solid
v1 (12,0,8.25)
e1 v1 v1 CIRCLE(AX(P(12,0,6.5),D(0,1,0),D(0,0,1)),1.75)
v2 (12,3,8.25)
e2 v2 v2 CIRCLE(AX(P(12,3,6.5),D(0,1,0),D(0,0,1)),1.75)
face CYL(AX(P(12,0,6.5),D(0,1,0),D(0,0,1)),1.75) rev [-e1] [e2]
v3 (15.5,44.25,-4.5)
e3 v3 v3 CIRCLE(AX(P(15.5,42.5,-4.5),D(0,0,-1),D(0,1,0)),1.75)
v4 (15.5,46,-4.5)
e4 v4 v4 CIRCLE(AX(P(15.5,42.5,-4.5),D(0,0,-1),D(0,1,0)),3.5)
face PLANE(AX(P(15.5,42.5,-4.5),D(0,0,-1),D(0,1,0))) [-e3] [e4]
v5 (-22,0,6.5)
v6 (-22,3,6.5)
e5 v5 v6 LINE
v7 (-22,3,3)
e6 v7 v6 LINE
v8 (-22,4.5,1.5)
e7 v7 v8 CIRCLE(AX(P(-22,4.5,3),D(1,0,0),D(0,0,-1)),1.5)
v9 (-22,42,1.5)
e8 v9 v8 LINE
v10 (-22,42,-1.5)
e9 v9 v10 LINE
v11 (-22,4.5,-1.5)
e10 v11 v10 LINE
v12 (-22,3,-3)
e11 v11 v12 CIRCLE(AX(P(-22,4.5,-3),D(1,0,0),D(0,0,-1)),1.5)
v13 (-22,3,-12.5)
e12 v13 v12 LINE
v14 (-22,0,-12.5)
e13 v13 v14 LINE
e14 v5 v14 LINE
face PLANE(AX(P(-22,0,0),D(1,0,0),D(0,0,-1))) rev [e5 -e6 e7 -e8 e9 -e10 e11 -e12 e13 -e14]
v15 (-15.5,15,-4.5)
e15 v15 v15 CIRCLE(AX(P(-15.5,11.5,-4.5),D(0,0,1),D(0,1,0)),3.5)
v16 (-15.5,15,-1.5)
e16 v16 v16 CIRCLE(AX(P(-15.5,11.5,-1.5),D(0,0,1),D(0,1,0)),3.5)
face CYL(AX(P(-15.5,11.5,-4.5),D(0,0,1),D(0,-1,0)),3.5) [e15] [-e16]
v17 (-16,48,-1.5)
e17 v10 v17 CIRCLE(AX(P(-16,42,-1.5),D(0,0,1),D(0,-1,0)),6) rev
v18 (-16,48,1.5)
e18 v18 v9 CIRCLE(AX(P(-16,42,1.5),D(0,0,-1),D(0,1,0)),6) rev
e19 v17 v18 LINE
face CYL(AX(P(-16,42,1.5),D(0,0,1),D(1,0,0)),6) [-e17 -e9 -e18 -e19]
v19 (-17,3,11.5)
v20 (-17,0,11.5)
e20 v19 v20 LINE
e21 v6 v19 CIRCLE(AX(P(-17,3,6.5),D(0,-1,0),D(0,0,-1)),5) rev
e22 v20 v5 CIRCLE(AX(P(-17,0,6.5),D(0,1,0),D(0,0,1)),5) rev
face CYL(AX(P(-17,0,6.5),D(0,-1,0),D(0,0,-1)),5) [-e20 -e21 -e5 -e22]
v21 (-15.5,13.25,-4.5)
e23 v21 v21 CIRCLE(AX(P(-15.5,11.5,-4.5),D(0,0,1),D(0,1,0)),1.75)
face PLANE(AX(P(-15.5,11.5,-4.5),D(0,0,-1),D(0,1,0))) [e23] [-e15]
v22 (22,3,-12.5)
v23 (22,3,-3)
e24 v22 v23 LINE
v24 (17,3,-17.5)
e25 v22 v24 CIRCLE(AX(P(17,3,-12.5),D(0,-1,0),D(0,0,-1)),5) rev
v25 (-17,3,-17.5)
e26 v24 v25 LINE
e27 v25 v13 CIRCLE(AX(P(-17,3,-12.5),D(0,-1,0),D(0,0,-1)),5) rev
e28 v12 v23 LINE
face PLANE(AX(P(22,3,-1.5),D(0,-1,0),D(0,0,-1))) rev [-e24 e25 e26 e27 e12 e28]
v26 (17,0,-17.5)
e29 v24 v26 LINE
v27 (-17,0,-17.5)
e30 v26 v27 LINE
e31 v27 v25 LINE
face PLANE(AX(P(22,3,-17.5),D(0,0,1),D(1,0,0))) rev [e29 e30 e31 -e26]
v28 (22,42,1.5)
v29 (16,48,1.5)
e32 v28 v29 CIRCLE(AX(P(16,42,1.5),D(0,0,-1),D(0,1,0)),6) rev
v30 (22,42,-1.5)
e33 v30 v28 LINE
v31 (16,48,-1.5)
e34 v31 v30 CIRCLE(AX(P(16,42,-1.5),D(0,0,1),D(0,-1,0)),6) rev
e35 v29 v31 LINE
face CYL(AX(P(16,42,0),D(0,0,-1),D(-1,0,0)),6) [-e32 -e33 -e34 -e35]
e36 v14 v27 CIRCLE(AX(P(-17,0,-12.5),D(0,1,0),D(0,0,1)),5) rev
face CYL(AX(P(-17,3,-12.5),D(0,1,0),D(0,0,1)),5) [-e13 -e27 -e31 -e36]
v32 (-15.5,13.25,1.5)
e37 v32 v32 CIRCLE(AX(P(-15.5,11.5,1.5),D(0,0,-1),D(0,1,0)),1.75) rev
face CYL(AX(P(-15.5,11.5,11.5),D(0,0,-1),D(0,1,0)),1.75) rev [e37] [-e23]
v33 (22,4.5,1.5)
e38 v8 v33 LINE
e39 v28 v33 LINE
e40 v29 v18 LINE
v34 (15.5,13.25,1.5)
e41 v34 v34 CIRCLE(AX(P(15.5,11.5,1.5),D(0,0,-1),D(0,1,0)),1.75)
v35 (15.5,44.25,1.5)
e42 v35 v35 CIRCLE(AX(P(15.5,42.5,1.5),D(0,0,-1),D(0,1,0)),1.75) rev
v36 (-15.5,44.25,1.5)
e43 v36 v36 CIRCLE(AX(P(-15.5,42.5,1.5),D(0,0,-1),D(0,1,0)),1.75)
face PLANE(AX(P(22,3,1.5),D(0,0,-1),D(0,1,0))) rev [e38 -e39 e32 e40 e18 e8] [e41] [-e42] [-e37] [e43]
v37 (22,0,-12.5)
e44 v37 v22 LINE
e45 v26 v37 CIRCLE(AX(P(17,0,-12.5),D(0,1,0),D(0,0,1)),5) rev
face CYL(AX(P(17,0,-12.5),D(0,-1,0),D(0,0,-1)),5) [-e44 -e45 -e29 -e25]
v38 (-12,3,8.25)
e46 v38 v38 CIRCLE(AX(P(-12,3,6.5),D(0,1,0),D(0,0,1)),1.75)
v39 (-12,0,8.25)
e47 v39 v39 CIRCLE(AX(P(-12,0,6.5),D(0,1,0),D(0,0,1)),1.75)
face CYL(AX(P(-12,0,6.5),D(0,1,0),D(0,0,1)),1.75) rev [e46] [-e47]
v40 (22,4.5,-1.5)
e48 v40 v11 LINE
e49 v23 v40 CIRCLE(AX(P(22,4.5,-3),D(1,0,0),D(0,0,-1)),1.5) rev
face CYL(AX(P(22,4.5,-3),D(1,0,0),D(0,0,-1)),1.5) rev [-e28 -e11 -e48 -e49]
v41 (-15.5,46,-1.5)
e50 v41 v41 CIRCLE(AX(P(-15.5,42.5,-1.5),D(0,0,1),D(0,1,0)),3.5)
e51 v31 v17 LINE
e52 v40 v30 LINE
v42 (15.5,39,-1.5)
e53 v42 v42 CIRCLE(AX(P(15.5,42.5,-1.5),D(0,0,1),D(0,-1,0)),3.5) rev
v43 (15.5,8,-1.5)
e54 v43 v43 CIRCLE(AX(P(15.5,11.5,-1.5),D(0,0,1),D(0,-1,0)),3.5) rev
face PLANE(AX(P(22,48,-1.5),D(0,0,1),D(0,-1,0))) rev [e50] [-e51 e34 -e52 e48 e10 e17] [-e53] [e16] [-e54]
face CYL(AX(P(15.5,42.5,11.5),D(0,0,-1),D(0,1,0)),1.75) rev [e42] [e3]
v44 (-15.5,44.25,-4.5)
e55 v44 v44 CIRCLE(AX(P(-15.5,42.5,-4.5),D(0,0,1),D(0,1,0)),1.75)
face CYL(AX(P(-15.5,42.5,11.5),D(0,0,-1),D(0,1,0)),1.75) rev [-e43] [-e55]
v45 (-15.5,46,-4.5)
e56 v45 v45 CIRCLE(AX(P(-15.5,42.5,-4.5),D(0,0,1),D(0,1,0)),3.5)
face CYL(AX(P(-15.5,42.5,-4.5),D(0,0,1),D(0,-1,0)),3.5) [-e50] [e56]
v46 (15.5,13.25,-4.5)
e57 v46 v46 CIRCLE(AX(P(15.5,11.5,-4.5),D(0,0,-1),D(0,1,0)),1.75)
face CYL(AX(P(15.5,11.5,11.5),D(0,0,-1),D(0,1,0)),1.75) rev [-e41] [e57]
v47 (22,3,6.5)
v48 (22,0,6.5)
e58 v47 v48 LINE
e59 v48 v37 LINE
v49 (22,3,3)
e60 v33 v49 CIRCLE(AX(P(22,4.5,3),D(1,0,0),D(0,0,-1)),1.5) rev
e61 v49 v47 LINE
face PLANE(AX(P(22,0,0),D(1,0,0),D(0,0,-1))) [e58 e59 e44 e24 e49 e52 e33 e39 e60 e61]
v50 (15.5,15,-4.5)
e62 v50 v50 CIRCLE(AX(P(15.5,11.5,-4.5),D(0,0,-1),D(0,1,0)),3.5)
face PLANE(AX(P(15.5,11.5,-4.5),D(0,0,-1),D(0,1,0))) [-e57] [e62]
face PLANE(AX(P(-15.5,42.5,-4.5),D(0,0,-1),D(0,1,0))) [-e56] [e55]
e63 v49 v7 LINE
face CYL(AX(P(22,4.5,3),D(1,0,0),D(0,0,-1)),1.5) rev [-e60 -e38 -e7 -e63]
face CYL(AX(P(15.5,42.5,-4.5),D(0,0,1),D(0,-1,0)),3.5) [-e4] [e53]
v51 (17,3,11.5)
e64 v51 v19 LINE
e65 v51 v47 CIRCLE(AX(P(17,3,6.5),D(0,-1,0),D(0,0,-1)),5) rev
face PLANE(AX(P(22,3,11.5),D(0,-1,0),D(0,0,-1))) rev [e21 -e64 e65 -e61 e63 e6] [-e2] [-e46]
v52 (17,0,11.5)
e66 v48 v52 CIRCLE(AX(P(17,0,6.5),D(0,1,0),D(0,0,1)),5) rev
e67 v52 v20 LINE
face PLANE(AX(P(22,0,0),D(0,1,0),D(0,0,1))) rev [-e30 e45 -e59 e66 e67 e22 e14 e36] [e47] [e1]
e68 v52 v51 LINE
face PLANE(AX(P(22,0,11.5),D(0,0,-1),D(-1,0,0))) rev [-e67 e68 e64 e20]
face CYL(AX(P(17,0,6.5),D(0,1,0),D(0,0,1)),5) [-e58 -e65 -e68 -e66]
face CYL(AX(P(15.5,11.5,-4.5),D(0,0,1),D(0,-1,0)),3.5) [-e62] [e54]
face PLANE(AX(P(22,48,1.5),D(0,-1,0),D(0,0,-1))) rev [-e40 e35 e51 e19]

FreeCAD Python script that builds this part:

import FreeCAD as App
import Part
import Sketcher


def edges_at(feature, points):
    """Names of the edges that pass closest to the given points."""
    edges = feature.Shape.Edges
    near = lambda p: min(range(len(edges)), key=lambda i: edges[i].distToShape(Part.Vertex(*p))[0])
    return sorted({f"Edge{near(p) + 1}" for p in points})


def add_polygon(sketch, points):
    """Adds a closed chain of lines whose ends are joined by coincident constraints."""
    first, n = sketch.GeometryCount, len(points)
    for a, b in zip(points, points[1:] + points[:1]):
        sketch.addGeometry(Part.LineSegment(App.Vector(*a, 0), App.Vector(*b, 0)), False)
    for i in range(n):
        sketch.addConstraint(Sketcher.Constraint("Coincident", first + i, 2, first + (i + 1) % n, 1))

doc = App.newDocument("Part")
body = doc.addObject("PartDesign::Body", "Body")

sketch1 = doc.addObject("Sketcher::SketchObject", "Sketch")
body.addObject(sketch1)
sketch1.AttachmentSupport = (doc.YZ_Plane, [""])
sketch1.MapMode = "FlatFace"
add_polygon(sketch1, [(3, 11.5), (0, 11.5), (0, -17.5), (3, -17.5), (3, -1.5), (48, -1.5), (48, 1.5), (3, 1.5)])
sketch1.addConstraint([
    Sketcher.Constraint("Horizontal", 0),
    Sketcher.Constraint("Vertical", 1),
    Sketcher.Constraint("Horizontal", 2),
    Sketcher.Constraint("Vertical", 3),
    Sketcher.Constraint("Horizontal", 4),
    Sketcher.Constraint("Vertical", 5),
    Sketcher.Constraint("Horizontal", 6),
    Sketcher.Constraint("Vertical", 7),
    Sketcher.Constraint("Symmetric", 3, 2, 6, 2, -1),
    Sketcher.Constraint("PointOnObject", 0, 2, -2),
    Sketcher.Constraint("Equal", 2, 5),
    Sketcher.Constraint("DistanceX", 0, 2, 0, 1, 3.0),
    Sketcher.Constraint("DistanceX", 4, 1, 4, 2, 45.0),
    Sketcher.Constraint("DistanceY", 1, 2, 1, 1, 29.0),
    Sketcher.Constraint("DistanceY", 3, 1, 3, 2, 16.0),
])
pad1 = doc.addObject("PartDesign::Pad", "Pad")
body.addObject(pad1)
pad1.Profile = sketch1
pad1.Length = 44
pad1.Midplane = True

sketch2 = doc.addObject("Sketcher::SketchObject", "Sketch001")
body.addObject(sketch2)
sketch2.AttachmentSupport = (doc.XY_Plane, [""])
sketch2.MapMode = "FlatFace"
sketch2.AttachmentOffset = App.Placement(App.Vector(0, 0, -1.5), App.Rotation())
sketch2.addGeometry([
    Part.Circle(App.Vector(-15.5, 42.5, 0), App.Vector(0, 0, 1), 1.8),
    Part.Circle(App.Vector(15.5, 11.5, 0), App.Vector(0, 0, 1), 1.8),
], False)
sketch2.addConstraint([
    Sketcher.Constraint("Equal", 0, 1),
    Sketcher.Constraint("Diameter", 0, 3.5),
    Sketcher.Constraint("DistanceX", 0, 3, 1, 3, 31.0),
    Sketcher.Constraint("DistanceY", 1, 3, 0, 3, 31.0),
    Sketcher.Constraint("DistanceX", 0, 3, -1, 1, 15.5),
    Sketcher.Constraint("DistanceY", -1, 1, 0, 3, 42.5),
])
pocket1 = doc.addObject("PartDesign::Pocket", "Pocket")
body.addObject(pocket1)
pocket1.Profile = sketch2
pocket1.Type = "ThroughAll"
pocket1.Reversed = True
doc.recompute()

mirrored = doc.addObject("PartDesign::Mirrored", "Mirrored")
body.addObject(mirrored)
mirrored.Originals = [pocket1]
mirrored.MirrorPlane = (doc.YZ_Plane, [""])
body.Tip = mirrored

sketch3 = doc.addObject("Sketcher::SketchObject", "Sketch002")
body.addObject(sketch3)
sketch3.AttachmentSupport = (doc.XZ_Plane, [""])
sketch3.MapMode = "FlatFace"
sketch3.AttachmentOffset = App.Placement(App.Vector(0, 0, -3), App.Rotation())
sketch3.addGeometry([
    Part.Circle(App.Vector(-12, 6.5, 0), App.Vector(0, 0, 1), 1.8),
    Part.Circle(App.Vector(12, 6.5, 0), App.Vector(0, 0, 1), 1.8),
], False)
sketch3.addConstraint([
    Sketcher.Constraint("Equal", 0, 1),
    Sketcher.Constraint("Symmetric", 0, 3, 1, 3, -2),
    Sketcher.Constraint("Diameter", 0, 3.5),
    Sketcher.Constraint("DistanceX", 0, 3, -1, 1, 12.0),
    Sketcher.Constraint("DistanceY", -1, 1, 0, 3, 6.5),
])
pocket2 = doc.addObject("PartDesign::Pocket", "Pocket001")
body.addObject(pocket2)
pocket2.Profile = sketch3
pocket2.Type = "ThroughAll"
pocket2.Reversed = True
doc.recompute()

fillet = doc.addObject("PartDesign::Fillet", "Fillet")
body.addObject(fillet)
fillet.Base = (pocket2, edges_at(pocket2, [(-22, 48, 0), (22, 48, 0)]))
fillet.Radius = 6
doc.recompute()

fillet2 = doc.addObject("PartDesign::Fillet", "Fillet001")
body.addObject(fillet2)
fillet2.Base = (fillet, edges_at(fillet, [
    (-22, 1.5, 11.5),
    (-22, 1.5, -17.5),
    (22, 1.5, 11.5),
    (22, 1.5, -17.5),
]))
fillet2.Radius = 5
doc.recompute()

fillet3 = doc.addObject("PartDesign::Fillet", "Fillet002")
body.addObject(fillet3)
fillet3.Base = (fillet2, edges_at(fillet2, [(0, 3, 1.5), (0, 3, -1.5)]))
fillet3.Radius = 1.5

sketch4 = doc.addObject("Sketcher::SketchObject", "Sketch003")
body.addObject(sketch4)
sketch4.AttachmentSupport = (doc.XY_Plane, [""])
sketch4.MapMode = "FlatFace"
sketch4.AttachmentOffset = App.Placement(App.Vector(0, 0, -4.5), App.Rotation())
sketch4.addGeometry([
    Part.Circle(App.Vector(15.5, 42.5, 0), App.Vector(0, 0, 1), 3.5),
    Part.Circle(App.Vector(15.5, 42.5, 0), App.Vector(0, 0, 1), 1.8),
    Part.Circle(App.Vector(15.5, 11.5, 0), App.Vector(0, 0, 1), 3.5),
    Part.Circle(App.Vector(15.5, 11.5, 0), App.Vector(0, 0, 1), 1.8),
], False)
sketch4.addConstraint([
    Sketcher.Constraint("Coincident", 1, 3, 0, 3),
    Sketcher.Constraint("Coincident", 3, 3, 2, 3),
    Sketcher.Constraint("Equal", 0, 2),
    Sketcher.Constraint("Equal", 1, 3),
    Sketcher.Constraint("Vertical", 1, 3, 2, 3),
    Sketcher.Constraint("Diameter", 0, 7.0),
    Sketcher.Constraint("Diameter", 1, 3.5),
    Sketcher.Constraint("DistanceY", 2, 3, 0, 3, 31.0),
    Sketcher.Constraint("DistanceX", -1, 1, 0, 3, 15.5),
    Sketcher.Constraint("DistanceY", -1, 1, 0, 3, 42.5),
])
pad2 = doc.addObject("PartDesign::Pad", "Pad001")
body.addObject(pad2)
pad2.Profile = sketch4
pad2.Length = 3
doc.recompute()

mirrored2 = doc.addObject("PartDesign::Mirrored", "Mirrored001")
body.addObject(mirrored2)
mirrored2.Originals = [pad2]
mirrored2.MirrorPlane = (doc.YZ_Plane, [""])
body.Tip = mirrored2

doc.recompute()
